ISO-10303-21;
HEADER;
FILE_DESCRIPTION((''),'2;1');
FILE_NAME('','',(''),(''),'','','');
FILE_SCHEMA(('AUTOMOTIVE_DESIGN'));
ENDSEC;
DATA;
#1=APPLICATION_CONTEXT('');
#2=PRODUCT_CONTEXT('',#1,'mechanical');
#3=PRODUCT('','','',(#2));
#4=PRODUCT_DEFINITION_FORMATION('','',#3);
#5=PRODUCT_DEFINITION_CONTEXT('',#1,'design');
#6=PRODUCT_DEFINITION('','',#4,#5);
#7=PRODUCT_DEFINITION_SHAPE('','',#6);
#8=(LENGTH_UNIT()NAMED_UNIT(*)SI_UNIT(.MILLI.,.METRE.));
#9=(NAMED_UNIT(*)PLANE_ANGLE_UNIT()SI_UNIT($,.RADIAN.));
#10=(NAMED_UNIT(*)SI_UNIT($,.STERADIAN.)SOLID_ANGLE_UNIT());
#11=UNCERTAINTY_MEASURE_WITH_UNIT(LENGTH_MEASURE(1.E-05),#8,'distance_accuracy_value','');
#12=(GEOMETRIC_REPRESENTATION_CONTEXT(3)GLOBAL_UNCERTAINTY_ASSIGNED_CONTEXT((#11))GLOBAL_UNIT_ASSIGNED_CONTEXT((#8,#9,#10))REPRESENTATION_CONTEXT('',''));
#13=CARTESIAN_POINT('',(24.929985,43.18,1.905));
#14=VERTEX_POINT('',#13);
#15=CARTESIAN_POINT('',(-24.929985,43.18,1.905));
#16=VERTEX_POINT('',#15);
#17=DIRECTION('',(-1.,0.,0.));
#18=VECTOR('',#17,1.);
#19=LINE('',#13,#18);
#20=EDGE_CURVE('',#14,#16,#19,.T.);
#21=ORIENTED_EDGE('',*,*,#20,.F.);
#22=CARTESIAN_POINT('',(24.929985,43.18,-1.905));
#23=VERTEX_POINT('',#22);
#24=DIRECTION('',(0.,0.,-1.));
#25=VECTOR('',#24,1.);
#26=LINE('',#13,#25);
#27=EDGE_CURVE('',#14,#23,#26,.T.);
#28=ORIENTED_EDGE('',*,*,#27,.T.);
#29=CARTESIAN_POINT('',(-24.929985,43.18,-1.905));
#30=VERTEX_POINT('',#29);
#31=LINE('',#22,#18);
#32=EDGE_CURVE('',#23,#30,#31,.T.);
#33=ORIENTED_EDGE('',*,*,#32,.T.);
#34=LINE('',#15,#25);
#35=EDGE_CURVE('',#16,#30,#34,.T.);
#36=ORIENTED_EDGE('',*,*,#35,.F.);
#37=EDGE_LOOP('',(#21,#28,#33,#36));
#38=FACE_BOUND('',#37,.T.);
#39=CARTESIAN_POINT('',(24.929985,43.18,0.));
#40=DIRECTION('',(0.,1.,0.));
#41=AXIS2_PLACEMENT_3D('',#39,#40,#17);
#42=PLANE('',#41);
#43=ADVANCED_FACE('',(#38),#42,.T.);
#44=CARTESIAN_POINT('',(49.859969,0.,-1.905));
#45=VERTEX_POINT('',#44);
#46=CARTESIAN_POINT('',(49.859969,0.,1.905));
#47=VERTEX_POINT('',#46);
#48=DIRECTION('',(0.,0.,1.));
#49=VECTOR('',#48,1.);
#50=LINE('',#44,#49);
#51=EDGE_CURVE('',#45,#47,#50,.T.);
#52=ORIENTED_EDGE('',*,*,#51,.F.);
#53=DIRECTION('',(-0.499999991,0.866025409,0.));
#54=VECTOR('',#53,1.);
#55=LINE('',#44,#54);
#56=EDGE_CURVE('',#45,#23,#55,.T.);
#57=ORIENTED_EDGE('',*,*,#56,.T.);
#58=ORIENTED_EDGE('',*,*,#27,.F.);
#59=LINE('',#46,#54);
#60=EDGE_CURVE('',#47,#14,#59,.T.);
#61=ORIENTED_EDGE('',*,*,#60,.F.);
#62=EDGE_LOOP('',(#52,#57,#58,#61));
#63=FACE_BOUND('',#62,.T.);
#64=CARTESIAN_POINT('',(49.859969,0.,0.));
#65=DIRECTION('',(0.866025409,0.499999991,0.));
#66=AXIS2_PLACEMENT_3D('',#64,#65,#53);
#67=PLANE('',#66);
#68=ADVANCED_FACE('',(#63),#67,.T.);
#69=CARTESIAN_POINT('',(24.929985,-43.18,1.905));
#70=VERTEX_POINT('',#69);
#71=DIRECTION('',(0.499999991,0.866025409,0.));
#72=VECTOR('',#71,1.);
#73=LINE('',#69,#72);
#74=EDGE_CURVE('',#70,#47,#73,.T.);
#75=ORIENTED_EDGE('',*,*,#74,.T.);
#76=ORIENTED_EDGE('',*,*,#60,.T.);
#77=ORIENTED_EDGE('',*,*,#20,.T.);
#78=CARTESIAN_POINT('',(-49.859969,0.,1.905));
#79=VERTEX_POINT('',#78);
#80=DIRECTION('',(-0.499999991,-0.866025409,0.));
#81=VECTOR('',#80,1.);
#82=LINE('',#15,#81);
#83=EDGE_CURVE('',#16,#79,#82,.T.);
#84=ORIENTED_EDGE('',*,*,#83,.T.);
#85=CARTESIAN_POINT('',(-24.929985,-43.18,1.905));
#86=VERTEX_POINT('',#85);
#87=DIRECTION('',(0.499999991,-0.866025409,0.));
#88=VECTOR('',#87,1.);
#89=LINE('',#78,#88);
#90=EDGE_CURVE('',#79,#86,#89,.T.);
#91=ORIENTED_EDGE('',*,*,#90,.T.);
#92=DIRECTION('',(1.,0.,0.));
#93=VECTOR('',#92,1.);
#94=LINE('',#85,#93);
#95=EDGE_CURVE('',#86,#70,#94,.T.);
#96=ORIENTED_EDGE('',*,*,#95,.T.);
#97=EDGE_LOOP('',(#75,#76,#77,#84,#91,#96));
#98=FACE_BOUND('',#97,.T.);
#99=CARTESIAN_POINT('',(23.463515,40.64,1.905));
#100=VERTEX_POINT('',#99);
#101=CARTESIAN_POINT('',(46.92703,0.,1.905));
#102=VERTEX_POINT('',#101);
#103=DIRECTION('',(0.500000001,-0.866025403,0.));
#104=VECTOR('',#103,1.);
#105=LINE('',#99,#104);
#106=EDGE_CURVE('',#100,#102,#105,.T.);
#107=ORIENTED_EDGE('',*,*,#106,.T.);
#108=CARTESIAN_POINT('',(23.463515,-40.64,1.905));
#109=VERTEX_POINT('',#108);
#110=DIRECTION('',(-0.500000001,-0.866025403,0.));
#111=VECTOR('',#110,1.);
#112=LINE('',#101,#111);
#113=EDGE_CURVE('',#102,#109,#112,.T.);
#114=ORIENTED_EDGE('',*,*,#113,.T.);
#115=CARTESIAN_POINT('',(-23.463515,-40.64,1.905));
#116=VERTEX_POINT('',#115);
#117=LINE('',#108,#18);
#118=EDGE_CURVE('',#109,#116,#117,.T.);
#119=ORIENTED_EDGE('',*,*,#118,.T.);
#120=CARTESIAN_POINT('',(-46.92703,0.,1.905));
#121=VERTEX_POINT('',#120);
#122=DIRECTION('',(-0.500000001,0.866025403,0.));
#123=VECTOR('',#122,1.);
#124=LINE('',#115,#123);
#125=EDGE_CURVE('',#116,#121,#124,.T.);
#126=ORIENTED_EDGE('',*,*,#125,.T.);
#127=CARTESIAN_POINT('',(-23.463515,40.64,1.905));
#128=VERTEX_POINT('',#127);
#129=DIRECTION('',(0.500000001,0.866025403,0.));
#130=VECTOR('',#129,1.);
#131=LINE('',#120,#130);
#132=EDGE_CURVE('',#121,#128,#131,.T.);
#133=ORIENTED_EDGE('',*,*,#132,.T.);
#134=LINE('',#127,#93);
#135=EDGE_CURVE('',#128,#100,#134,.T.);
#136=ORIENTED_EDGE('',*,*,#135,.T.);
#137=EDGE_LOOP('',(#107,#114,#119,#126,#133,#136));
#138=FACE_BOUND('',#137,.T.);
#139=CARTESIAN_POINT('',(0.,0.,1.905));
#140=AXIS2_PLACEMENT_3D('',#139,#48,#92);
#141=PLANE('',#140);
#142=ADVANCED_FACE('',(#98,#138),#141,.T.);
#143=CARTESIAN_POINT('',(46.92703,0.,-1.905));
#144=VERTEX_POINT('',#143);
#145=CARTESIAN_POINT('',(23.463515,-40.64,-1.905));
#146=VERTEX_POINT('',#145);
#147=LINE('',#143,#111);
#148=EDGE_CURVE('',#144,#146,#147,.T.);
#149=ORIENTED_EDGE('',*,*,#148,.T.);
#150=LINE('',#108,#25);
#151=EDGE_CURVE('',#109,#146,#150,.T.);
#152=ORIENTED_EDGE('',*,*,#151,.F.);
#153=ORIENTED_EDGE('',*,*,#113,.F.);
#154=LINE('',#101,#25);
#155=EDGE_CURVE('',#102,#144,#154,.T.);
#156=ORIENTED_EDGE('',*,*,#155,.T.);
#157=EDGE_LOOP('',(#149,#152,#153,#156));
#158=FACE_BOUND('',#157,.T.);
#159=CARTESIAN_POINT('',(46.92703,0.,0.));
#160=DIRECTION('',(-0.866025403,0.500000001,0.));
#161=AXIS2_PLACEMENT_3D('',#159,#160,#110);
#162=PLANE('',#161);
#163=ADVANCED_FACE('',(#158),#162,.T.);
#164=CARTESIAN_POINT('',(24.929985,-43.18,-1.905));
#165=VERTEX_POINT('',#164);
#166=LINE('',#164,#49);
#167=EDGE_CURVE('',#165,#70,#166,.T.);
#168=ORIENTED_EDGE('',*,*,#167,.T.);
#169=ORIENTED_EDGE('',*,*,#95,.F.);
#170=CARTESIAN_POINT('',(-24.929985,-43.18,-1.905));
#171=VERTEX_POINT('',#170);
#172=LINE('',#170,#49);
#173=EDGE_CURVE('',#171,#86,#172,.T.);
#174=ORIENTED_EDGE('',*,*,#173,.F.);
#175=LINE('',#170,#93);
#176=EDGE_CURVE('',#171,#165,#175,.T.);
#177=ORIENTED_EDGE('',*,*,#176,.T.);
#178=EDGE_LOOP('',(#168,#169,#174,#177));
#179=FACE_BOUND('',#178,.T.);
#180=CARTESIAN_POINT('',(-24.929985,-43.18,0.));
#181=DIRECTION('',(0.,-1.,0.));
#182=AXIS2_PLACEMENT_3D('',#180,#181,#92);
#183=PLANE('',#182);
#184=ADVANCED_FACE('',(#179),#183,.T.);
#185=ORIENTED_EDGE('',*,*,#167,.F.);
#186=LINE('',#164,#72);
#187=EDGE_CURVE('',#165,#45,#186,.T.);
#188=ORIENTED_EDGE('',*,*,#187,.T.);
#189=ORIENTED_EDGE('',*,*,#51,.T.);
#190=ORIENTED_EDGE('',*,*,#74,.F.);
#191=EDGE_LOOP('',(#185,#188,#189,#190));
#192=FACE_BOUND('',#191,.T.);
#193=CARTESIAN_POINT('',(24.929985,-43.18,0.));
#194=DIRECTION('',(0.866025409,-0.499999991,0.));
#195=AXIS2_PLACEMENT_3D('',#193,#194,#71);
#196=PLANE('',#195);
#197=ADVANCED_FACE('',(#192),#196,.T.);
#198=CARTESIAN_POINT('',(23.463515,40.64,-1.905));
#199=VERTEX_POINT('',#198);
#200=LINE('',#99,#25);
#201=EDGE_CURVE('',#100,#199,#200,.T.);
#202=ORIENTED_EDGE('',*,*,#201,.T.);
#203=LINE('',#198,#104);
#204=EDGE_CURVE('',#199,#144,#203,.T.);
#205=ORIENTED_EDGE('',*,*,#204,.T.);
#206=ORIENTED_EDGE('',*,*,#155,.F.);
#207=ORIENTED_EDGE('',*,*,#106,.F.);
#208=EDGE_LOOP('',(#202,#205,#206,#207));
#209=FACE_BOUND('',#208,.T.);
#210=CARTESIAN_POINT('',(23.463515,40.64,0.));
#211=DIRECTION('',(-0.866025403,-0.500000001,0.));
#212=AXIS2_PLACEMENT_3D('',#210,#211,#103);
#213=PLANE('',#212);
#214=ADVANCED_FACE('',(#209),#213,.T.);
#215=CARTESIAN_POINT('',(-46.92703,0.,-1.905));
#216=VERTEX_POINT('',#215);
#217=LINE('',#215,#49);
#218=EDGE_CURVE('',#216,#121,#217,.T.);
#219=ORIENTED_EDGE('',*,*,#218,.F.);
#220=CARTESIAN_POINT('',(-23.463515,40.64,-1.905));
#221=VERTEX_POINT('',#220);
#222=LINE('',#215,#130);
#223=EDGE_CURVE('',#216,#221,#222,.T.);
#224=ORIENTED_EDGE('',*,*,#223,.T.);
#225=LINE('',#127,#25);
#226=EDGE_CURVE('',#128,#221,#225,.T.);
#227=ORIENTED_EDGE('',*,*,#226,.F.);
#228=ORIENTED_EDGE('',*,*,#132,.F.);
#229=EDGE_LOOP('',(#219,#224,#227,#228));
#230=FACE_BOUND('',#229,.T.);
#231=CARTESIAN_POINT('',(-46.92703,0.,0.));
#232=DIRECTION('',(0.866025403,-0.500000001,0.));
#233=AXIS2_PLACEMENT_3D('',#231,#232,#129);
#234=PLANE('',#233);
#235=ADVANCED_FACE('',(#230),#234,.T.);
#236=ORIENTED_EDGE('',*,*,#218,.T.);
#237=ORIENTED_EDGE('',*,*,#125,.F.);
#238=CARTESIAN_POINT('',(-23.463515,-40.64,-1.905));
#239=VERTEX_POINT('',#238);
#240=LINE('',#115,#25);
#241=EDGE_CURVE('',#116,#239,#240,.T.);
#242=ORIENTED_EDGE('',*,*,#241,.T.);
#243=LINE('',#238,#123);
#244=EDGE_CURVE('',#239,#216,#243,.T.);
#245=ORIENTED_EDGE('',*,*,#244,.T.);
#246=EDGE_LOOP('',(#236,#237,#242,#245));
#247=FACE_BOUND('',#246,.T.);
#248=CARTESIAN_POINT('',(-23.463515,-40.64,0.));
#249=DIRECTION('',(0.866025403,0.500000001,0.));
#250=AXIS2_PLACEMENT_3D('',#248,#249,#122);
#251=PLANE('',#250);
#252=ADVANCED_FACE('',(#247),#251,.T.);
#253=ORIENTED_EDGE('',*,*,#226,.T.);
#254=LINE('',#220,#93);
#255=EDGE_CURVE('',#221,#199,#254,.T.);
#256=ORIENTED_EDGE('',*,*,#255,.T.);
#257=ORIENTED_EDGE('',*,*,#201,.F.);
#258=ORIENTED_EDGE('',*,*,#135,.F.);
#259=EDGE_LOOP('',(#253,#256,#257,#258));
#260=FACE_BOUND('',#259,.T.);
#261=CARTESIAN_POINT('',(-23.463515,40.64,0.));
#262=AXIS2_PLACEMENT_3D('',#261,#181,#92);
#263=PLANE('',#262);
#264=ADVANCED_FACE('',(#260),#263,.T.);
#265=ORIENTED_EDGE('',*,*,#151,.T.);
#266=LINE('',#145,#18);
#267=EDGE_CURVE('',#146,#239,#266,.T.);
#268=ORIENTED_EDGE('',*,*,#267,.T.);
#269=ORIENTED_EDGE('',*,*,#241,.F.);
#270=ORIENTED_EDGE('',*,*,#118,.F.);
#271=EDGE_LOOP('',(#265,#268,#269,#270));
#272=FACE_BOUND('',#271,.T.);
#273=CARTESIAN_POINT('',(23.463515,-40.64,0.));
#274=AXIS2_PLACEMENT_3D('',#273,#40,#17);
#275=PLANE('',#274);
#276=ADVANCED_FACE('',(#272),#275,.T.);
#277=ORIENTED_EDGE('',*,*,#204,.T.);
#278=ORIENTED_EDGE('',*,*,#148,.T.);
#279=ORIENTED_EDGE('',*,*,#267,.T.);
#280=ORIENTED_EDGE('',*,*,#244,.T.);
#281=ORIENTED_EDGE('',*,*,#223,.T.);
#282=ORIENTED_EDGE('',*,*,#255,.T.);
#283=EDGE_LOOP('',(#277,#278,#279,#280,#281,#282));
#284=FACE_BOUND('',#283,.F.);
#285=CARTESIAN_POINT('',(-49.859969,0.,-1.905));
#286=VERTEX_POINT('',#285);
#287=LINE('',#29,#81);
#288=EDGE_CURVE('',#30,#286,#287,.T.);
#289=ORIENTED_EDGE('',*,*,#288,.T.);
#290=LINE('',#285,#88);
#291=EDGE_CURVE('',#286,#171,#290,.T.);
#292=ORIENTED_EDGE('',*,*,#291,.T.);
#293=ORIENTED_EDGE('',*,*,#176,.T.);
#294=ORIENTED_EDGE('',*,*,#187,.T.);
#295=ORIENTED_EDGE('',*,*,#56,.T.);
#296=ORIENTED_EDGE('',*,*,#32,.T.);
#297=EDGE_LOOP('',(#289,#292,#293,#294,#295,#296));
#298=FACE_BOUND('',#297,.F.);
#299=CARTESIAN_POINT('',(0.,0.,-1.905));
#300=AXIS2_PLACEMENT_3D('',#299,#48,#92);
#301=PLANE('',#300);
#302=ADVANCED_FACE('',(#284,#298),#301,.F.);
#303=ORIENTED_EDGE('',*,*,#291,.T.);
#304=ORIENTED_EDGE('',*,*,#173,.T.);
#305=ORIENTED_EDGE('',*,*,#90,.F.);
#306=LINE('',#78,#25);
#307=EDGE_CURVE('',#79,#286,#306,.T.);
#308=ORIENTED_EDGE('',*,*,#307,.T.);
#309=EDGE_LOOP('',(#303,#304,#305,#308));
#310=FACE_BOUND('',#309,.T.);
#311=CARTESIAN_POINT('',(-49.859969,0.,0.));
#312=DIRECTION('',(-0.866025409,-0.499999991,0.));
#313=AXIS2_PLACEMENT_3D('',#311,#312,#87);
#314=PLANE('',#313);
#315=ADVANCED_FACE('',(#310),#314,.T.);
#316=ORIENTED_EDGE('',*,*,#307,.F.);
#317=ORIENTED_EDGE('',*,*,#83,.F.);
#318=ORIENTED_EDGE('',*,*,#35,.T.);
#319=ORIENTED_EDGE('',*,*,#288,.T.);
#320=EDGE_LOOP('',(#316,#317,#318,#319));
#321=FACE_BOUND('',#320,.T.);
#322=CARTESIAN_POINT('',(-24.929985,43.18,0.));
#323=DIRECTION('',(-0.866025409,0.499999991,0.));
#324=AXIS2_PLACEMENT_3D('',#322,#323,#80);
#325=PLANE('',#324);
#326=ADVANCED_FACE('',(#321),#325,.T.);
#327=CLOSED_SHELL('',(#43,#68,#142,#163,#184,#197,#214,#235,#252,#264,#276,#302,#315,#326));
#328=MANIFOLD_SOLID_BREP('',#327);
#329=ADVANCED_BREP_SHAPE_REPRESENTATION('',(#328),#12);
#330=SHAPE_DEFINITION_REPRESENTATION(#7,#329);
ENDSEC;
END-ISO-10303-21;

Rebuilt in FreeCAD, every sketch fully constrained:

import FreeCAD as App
import Part
import Sketcher
from FreeCAD import Vector
Q = App.Units.Quantity

doc = App.newDocument("Part")
params = doc.addObject("Spreadsheet::Sheet", "Params")
for row, (alias, value) in enumerate([
    ("pad1_length", "0.15 in"),
], start=1):
    params.set(f"A{row}", alias)
    params.set(f"B{row}", "=" + value)
    params.setAlias(f"B{row}", alias)

body = doc.addObject("PartDesign::Body", "Body")

sketch1 = body.newObject("Sketcher::SketchObject", "Sketch")
sketch1.AttachmentSupport = (doc.getObject("XY_Plane"), [""])
sketch1.MapMode = "FlatFace"
sketch1.addGeometry([
    Part.LineSegment(Vector(-50, 0, 0), Vector(-25, -43, 0)),
    Part.LineSegment(Vector(-25, -43, 0), Vector(25, -43, 0)),
    Part.LineSegment(Vector(25, -43, 0), Vector(50, 0, 0)),
    Part.LineSegment(Vector(50, 0, 0), Vector(25, 43, 0)),
    Part.LineSegment(Vector(25, 43, 0), Vector(-25, 43, 0)),
    Part.LineSegment(Vector(-25, 43, 0), Vector(-50, 0, 0)),
    Part.LineSegment(Vector(-23, -41, 0), Vector(-47, 0, 0)),
    Part.LineSegment(Vector(-47, 0, 0), Vector(-23, 41, 0)),
    Part.LineSegment(Vector(-23, 41, 0), Vector(23, 41, 0)),
    Part.LineSegment(Vector(23, 41, 0), Vector(47, 0, 0)),
    Part.LineSegment(Vector(47, 0, 0), Vector(23, -41, 0)),
    Part.LineSegment(Vector(23, -41, 0), Vector(-23, -41, 0)),
], False)
sketch1.addConstraint([
    Sketcher.Constraint("Coincident", 0, 2, 1, 1),
    Sketcher.Constraint("Coincident", 1, 2, 2, 1),
    Sketcher.Constraint("Coincident", 2, 2, 3, 1),
    Sketcher.Constraint("Coincident", 3, 2, 4, 1),
    Sketcher.Constraint("Coincident", 4, 2, 5, 1),
    Sketcher.Constraint("Coincident", 5, 2, 0, 1),
    Sketcher.Constraint("Coincident", 6, 2, 7, 1),
    Sketcher.Constraint("Coincident", 7, 2, 8, 1),
    Sketcher.Constraint("Coincident", 8, 2, 9, 1),
    Sketcher.Constraint("Coincident", 9, 2, 10, 1),
    Sketcher.Constraint("Coincident", 10, 2, 11, 1),
    Sketcher.Constraint("Coincident", 11, 2, 6, 1),
    Sketcher.Constraint("Horizontal", 1),
    Sketcher.Constraint("Horizontal", 4),
    Sketcher.Constraint("Horizontal", 8),
    Sketcher.Constraint("Horizontal", 11),
    Sketcher.Constraint("Symmetric", 0, 2, 3, 2, -1, 1),
    Sketcher.Constraint("Symmetric", 2, 2, 5, 2, -1, 1),
    Sketcher.Constraint("Symmetric", 6, 2, 9, 2, -1, 1),
    Sketcher.Constraint("Symmetric", 7, 2, 10, 2, -1, 1),
    Sketcher.Constraint("PointOnObject", 2, 2, -1),
    Sketcher.Constraint("PointOnObject", 6, 2, -1),
    Sketcher.Constraint("Parallel", 2, 5),
    Sketcher.Constraint("Parallel", 3, 6),
    Sketcher.Constraint("Parallel", 5, 7),
    Sketcher.Constraint("Parallel", 6, 9),
    Sketcher.Constraint("Vertical", 1, 2, 3, 2),
    Sketcher.Constraint("Angle", 0, Q("-60.000001 deg")),
    Sketcher.Constraint("DistanceY", 0, 2, -1, 1, Q("1.7 in")),
    Sketcher.Constraint("DistanceY", -1, 1, 7, 2, Q("1.6 in")),
    Sketcher.Constraint("DistanceX", 1, 1, 1, 2, Q("49.85997 mm")),
    Sketcher.Constraint("DistanceX", 8, 1, 8, 2, Q("46.92703 mm")),
])
pad1 = body.newObject("PartDesign::Pad", "Pad")
pad1.Profile = sketch1
pad1.setExpression("Length", "Params.pad1_length")
pad1.Midplane = True

doc.recompute()
